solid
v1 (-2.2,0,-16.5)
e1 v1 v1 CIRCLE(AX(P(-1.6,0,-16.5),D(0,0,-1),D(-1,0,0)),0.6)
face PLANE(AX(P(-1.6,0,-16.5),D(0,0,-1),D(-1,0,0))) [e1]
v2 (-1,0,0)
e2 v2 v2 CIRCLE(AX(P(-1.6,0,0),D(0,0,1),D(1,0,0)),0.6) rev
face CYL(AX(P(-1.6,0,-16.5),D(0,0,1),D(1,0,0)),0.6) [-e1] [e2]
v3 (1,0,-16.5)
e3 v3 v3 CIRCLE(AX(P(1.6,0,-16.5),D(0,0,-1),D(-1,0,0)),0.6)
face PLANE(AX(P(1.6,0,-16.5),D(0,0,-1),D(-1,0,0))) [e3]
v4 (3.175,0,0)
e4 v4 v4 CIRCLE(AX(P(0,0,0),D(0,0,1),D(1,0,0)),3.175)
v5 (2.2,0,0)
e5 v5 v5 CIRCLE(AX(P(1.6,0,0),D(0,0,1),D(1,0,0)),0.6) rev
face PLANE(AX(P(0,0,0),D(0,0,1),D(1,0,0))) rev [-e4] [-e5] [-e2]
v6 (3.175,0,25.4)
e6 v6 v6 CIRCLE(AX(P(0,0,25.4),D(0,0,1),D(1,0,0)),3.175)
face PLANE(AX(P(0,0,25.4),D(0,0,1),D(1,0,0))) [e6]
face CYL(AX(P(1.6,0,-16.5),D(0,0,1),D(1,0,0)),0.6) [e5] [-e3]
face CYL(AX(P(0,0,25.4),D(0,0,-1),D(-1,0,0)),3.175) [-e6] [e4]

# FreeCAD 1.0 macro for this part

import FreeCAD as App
import Part
import Sketcher

V = App.Vector

doc = App.newDocument("Part")
params = doc.addObject("Spreadsheet::Sheet", "Params")
for row, (alias, value) in enumerate([
    ("sketch1_diameter", "6.35 mm"),
    ("pad1_length", "25.4 mm"),
    ("sketch2_diameter", "1.2 mm"),
    ("pad2_length", "16.5 mm"),
], start=1):
    params.set(f"A{row}", alias)
    params.set(f"B{row}", "=" + value)
    params.setAlias(f"B{row}", alias)

body = doc.addObject("PartDesign::Body", "Body")

sketch1 = body.newObject("Sketcher::SketchObject", "Sketch")
sketch1.AttachmentSupport = (doc.getObject("XY_Plane"), [""])
sketch1.MapMode = "FlatFace"
sketch1.addGeometry(Part.Circle(V(0, 0, 0), V(0, 0, 1), 3.175), False)
sketch1.addConstraint([
    Sketcher.Constraint("Coincident", 0, 3, -1, 1),
    Sketcher.Constraint("Diameter", 0, 6.35),
])
sketch1.setExpression("Constraints[1]", "Params.sketch1_diameter")
pad1 = body.newObject("PartDesign::Pad", "Pad")
pad1.Profile = sketch1
pad1.setExpression("Length", "Params.pad1_length")

sketch2 = body.newObject("Sketcher::SketchObject", "Sketch001")
sketch2.AttachmentSupport = (doc.getObject("XY_Plane"), [""])
sketch2.MapMode = "FlatFace"
sketch2.addGeometry([
    Part.Circle(V(1.6, 0, 0), V(0, 0, 1), 0.6),
    Part.Circle(V(-1.6, 0, 0), V(0, 0, 1), 0.6),
], False)
sketch2.addConstraint([
    Sketcher.Constraint("Equal", 0, 1),
    Sketcher.Constraint("Symmetric", 0, 3, 1, 3, -1, 1),
    Sketcher.Constraint("PointOnObject", 0, 3, -1),
    Sketcher.Constraint("Diameter", 0, 1.2),
    Sketcher.Constraint("DistanceX", -1, 1, 0, 3, 1.6),
])
sketch2.setExpression("Constraints[3]", "Params.sketch2_diameter")
pad2 = body.newObject("PartDesign::Pad", "Pad001")
pad2.Profile = sketch2
pad2.setExpression("Length", "Params.pad2_length")
pad2.Reversed = True

doc.recompute()
